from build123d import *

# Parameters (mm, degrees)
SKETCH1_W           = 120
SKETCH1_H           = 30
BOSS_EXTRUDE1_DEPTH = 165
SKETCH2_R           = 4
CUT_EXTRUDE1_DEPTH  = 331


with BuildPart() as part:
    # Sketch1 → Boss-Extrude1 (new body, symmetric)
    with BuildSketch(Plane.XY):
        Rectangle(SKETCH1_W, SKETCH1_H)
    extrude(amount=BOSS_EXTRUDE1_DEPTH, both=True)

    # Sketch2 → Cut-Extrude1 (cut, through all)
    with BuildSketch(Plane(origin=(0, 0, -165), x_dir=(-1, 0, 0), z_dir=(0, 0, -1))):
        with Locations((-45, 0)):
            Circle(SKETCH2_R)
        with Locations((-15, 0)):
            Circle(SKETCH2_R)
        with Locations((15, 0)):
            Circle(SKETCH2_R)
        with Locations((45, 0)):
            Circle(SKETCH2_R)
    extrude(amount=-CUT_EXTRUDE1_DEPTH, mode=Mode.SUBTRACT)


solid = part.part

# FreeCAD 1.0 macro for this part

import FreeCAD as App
import Part
import Sketcher


def add_polygon(sketch, points):
    """Adds a closed chain of lines whose ends are joined by coincident constraints."""
    first, n = sketch.GeometryCount, len(points)
    for a, b in zip(points, points[1:] + points[:1]):
        sketch.addGeometry(Part.LineSegment(App.Vector(*a, 0), App.Vector(*b, 0)), False)
    for i in range(n):
        sketch.addConstraint(Sketcher.Constraint("Coincident", first + i, 2, first + (i + 1) % n, 1))

doc = App.newDocument("Part")
body = doc.addObject("PartDesign::Body", "Body")

# Sketch on XY plane
sketch1 = body.newObject("Sketcher::SketchObject", "Sketch")
sketch1.AttachmentSupport = (doc.getObject("XY_Plane"), [""])
sketch1.MapMode = "FlatFace"
add_polygon(sketch1, [(-60, 15), (-60, -15), (60, -15), (60, 15)])  # lines 0-3
sketch1.addConstraint([
    Sketcher.Constraint("Vertical", 0),
    Sketcher.Constraint("Horizontal", 1),
    Sketcher.Constraint("Vertical", 2),
    Sketcher.Constraint("Horizontal", 3),
    Sketcher.Constraint("Symmetric", 0, 2, 2, 2, -1, 1),
    Sketcher.Constraint("DistanceX", 1, 1, 1, 2, 120.0),
    Sketcher.Constraint("DistanceY", 0, 2, 0, 1, 30.0),
])
pad1 = body.newObject("PartDesign::Pad", "Pad")
pad1.Profile = sketch1
pad1.Length = 330
pad1.Midplane = True

# Sketch on XY plane
sketch2 = body.newObject("Sketcher::SketchObject", "Sketch001")
sketch2.AttachmentSupport = (doc.getObject("XY_Plane"), [""])
sketch2.MapMode = "FlatFace"
sketch2.AttachmentOffset = App.Placement(App.Vector(0, 0, -165), App.Rotation())
sketch2.addGeometry([
    Part.Circle(App.Vector(45, 0, 0), App.Vector(0, 0, 1), 4),
    Part.Circle(App.Vector(15, 0, 0), App.Vector(0, 0, 1), 4),
    Part.Circle(App.Vector(-15, 0, 0), App.Vector(0, 0, 1), 4),
    Part.Circle(App.Vector(-45, 0, 0), App.Vector(0, 0, 1), 4),
], False)
sketch2.addConstraint([
    Sketcher.Constraint("Equal", 0, 1),
    Sketcher.Constraint("Equal", 1, 2),
    Sketcher.Constraint("Equal", 2, 3),
    Sketcher.Constraint("Symmetric", 1, 3, 2, 3, -1, 1),
    Sketcher.Constraint("Symmetric", 0, 3, 3, 3, -1, 1),
    Sketcher.Constraint("PointOnObject", 0, 3, -1),
    Sketcher.Constraint("PointOnObject", 1, 3, -1),
    Sketcher.Constraint("Diameter", 0, 8.0),
    Sketcher.Constraint("DistanceX", -1, 1, 0, 3, 45.0),
    Sketcher.Constraint("DistanceX", -1, 1, 1, 3, 15.0),
])
pocket1 = body.newObject("PartDesign::Pocket", "Pocket")
pocket1.Profile = sketch2
pocket1.Type = "ThroughAll"
pocket1.Reversed = True

doc.recompute()
